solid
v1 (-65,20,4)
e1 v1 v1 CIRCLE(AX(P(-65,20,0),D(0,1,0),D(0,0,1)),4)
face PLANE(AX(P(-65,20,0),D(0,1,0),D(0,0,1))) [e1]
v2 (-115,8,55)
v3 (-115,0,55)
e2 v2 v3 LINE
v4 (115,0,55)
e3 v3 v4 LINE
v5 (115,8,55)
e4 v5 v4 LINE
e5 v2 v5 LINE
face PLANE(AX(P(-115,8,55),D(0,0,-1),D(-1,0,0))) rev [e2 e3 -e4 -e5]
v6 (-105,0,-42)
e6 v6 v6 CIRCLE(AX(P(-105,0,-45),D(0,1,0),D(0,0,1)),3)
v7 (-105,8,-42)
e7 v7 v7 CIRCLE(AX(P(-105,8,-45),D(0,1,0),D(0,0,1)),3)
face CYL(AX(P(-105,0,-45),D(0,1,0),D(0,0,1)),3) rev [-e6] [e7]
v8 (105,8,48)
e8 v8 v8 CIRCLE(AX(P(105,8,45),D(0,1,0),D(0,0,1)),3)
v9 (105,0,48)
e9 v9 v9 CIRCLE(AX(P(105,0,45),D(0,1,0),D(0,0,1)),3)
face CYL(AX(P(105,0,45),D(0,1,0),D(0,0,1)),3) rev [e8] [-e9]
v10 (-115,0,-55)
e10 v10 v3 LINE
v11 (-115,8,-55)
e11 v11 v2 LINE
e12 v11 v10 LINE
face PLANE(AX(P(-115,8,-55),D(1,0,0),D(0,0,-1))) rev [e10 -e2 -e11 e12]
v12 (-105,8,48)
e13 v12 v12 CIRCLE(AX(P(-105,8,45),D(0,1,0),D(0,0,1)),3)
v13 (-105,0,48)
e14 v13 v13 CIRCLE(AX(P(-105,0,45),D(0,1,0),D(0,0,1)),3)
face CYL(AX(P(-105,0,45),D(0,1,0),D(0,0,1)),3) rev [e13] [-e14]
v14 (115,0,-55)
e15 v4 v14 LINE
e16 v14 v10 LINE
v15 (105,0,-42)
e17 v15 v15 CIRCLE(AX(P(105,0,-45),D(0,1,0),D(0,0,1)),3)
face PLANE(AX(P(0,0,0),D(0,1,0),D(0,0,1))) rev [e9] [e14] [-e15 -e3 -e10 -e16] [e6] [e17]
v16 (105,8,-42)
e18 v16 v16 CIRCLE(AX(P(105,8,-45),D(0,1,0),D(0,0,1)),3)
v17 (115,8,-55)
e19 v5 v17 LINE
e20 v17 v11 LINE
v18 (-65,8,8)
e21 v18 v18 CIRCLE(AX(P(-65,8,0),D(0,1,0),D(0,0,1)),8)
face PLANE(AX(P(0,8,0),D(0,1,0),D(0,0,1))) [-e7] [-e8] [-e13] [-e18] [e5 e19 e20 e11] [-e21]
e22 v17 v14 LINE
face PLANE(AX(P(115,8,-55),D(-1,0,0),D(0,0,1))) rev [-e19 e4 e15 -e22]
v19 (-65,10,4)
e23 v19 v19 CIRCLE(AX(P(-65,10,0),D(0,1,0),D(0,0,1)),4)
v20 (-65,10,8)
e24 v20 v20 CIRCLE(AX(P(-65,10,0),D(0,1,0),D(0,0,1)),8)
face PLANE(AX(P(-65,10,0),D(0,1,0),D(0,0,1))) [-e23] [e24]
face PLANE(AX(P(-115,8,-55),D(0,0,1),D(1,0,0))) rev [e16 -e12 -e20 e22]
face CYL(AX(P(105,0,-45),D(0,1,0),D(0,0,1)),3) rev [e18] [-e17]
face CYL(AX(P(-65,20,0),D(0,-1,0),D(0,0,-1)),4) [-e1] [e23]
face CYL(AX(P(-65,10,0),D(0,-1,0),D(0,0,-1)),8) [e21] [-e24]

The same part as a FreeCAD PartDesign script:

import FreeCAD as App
import Part
import Sketcher
from FreeCAD import Vector

doc = App.newDocument("Part")
body = doc.addObject("PartDesign::Body", "Body")

# Sketch on XZ plane
sketch1 = body.newObject("Sketcher::SketchObject", "Sketch")
sketch1.AttachmentSupport = (doc.getObject("XZ_Plane"), [""])
sketch1.MapMode = "FlatFace"
sketch1.addGeometry([
    Part.LineSegment(Vector(-115, -55, 0), Vector(-115, 55, 0)),
    Part.LineSegment(Vector(-115, 55, 0), Vector(115, 55, 0)),
    Part.LineSegment(Vector(115, 55, 0), Vector(115, -55, 0)),
    Part.LineSegment(Vector(115, -55, 0), Vector(-115, -55, 0)),
], False)
sketch1.addConstraint([
    Sketcher.Constraint("Coincident", 0, 2, 1, 1),
    Sketcher.Constraint("Coincident", 1, 2, 2, 1),
    Sketcher.Constraint("Coincident", 2, 2, 3, 1),
    Sketcher.Constraint("Coincident", 3, 2, 0, 1),
    Sketcher.Constraint("Vertical", 0),
    Sketcher.Constraint("Horizontal", 1),
    Sketcher.Constraint("Vertical", 2),
    Sketcher.Constraint("Horizontal", 3),
    Sketcher.Constraint("Symmetric", 0, 2, 2, 2, -1, 1),
    Sketcher.Constraint("DistanceX", 1, 1, 1, 2, 230.0),
    Sketcher.Constraint("DistanceY", 0, 1, 0, 2, 110.0),
])
pad1 = body.newObject("PartDesign::Pad", "Pad")
pad1.Profile = sketch1
pad1.Length = 8
pad1.Reversed = True

# Sketch on XZ plane
sketch2 = body.newObject("Sketcher::SketchObject", "Sketch001")
sketch2.AttachmentSupport = (doc.getObject("XZ_Plane"), [""])
sketch2.MapMode = "FlatFace"
sketch2.AttachmentOffset = App.Placement(Vector(0, 0, -8), App.Rotation())
sketch2.addGeometry(Part.Circle(Vector(-65, 0, 0), Vector(0, 0, 1), 8), False)
sketch2.addConstraint([
    Sketcher.Constraint("PointOnObject", 0, 3, -1),
    Sketcher.Constraint("Diameter", 0, 16.0),
    Sketcher.Constraint("DistanceX", 0, 3, -1, 1, 65.0),
])
pad2 = body.newObject("PartDesign::Pad", "Pad001")
pad2.Profile = sketch2
pad2.Length = 2
pad2.Reversed = True

# Sketch on XZ plane
sketch3 = body.newObject("Sketcher::SketchObject", "Sketch002")
sketch3.AttachmentSupport = (doc.getObject("XZ_Plane"), [""])
sketch3.MapMode = "FlatFace"
sketch3.AttachmentOffset = App.Placement(Vector(0, 0, -10), App.Rotation())
sketch3.addGeometry(Part.Circle(Vector(-65, 0, 0), Vector(0, 0, 1), 4), False)
sketch3.addConstraint([
    Sketcher.Constraint("PointOnObject", 0, 3, -1),
    Sketcher.Constraint("Diameter", 0, 8.0),
    Sketcher.Constraint("DistanceX", 0, 3, -1, 1, 65.0),
])
pad3 = body.newObject("PartDesign::Pad", "Pad002")
pad3.Profile = sketch3
pad3.Length = 10
pad3.Reversed = True

# Sketch on XZ plane
sketch4 = body.newObject("Sketcher::SketchObject", "Sketch003")
sketch4.AttachmentSupport = (doc.getObject("XZ_Plane"), [""])
sketch4.MapMode = "FlatFace"
sketch4.AttachmentOffset = App.Placement(Vector(0, 0, -8), App.Rotation())
sketch4.addGeometry([
    Part.Circle(Vector(-105, -45, 0), Vector(0, 0, 1), 3),
    Part.Circle(Vector(-105, 45, 0), Vector(0, 0, 1), 3),
    Part.Circle(Vector(105, -45, 0), Vector(0, 0, 1), 3),
    Part.Circle(Vector(105, 45, 0), Vector(0, 0, 1), 3),
], False)
sketch4.addConstraint([
    Sketcher.Constraint("Equal", 0, 1),
    Sketcher.Constraint("Equal", 1, 2),
    Sketcher.Constraint("Equal", 2, 3),
    Sketcher.Constraint("Symmetric", 1, 3, 2, 3, -1, 1),
    Sketcher.Constraint("Symmetric", 0, 3, 3, 3, -1, 1),
    Sketcher.Constraint("Symmetric", 0, 3, 2, 3, -2),
    Sketcher.Constraint("Diameter", 0, 6.0),
    Sketcher.Constraint("DistanceX", 0, 3, -1, 1, 105.0),
    Sketcher.Constraint("DistanceY", 0, 3, -1, 1, 45.0),
])
pocket1 = body.newObject("PartDesign::Pocket", "Pocket")
pocket1.Profile = sketch4
pocket1.Type = "ThroughAll"
pocket1.Reversed = True

doc.recompute()
